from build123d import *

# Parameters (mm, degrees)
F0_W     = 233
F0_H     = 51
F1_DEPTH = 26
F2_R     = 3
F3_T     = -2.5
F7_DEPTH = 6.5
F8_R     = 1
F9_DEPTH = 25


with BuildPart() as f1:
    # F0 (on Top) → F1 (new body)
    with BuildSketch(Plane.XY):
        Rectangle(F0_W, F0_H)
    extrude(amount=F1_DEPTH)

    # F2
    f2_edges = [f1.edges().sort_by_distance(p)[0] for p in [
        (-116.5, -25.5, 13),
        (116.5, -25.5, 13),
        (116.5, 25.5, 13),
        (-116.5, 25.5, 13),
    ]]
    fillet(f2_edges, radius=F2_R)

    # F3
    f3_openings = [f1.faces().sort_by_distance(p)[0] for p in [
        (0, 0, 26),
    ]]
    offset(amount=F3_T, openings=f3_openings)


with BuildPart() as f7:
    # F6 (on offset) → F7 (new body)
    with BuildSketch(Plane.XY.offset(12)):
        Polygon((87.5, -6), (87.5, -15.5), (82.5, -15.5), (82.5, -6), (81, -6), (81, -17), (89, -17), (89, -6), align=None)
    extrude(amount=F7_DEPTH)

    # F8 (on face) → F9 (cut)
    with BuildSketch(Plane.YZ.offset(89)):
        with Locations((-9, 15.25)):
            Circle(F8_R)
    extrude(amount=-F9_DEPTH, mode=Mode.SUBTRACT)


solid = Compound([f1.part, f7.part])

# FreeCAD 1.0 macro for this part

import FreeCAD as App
import Part
import Sketcher
from FreeCAD import Vector


def edges_at(feature, points):
    """Names of the edges that pass closest to the given points."""
    edges = feature.Shape.Edges
    near = lambda p: min(range(len(edges)), key=lambda i: edges[i].distToShape(Part.Vertex(*p))[0])
    return sorted({f"Edge{near(p) + 1}" for p in points})


def faces_at(feature, points):
    """Names of the faces that lie closest to the given points."""
    faces = feature.Shape.Faces
    near = lambda p: min(range(len(faces)), key=lambda i: faces[i].distToShape(Part.Vertex(*p))[0])
    return sorted({f"Face{near(p) + 1}" for p in points})

doc = App.newDocument("Part")
body = doc.addObject("PartDesign::Body", "Body")

sketch1 = body.newObject("Sketcher::SketchObject", "Sketch")
sketch1.AttachmentSupport = (doc.getObject("XY_Plane"), [""])
sketch1.MapMode = "FlatFace"
sketch1.addGeometry([
    Part.LineSegment(Vector(-116, 26, 0), Vector(-116, -26, 0)),
    Part.LineSegment(Vector(-116, -26, 0), Vector(116, -26, 0)),
    Part.LineSegment(Vector(116, -26, 0), Vector(116, 26, 0)),
    Part.LineSegment(Vector(116, 26, 0), Vector(-116, 26, 0)),
], False)
sketch1.addConstraint([
    Sketcher.Constraint("Coincident", 0, 2, 1, 1),
    Sketcher.Constraint("Coincident", 1, 2, 2, 1),
    Sketcher.Constraint("Coincident", 2, 2, 3, 1),
    Sketcher.Constraint("Coincident", 3, 2, 0, 1),
    Sketcher.Constraint("Vertical", 0),
    Sketcher.Constraint("Horizontal", 1),
    Sketcher.Constraint("Vertical", 2),
    Sketcher.Constraint("Horizontal", 3),
    Sketcher.Constraint("Symmetric", 0, 2, 2, 2, -1, 1),
    Sketcher.Constraint("DistanceX", 1, 1, 1, 2, 233.0),
    Sketcher.Constraint("DistanceY", 0, 2, 0, 1, 51.0),
])
pad1 = body.newObject("PartDesign::Pad", "Pad")
pad1.Profile = sketch1
pad1.Length = 26
doc.recompute()

fillet = body.newObject("PartDesign::Fillet", "Fillet")
fillet.Base = (pad1, edges_at(pad1, [
    (-116.5, -25.5, 13),
    (116.5, -25.5, 13),
    (116.5, 25.5, 13),
    (-116.5, 25.5, 13),
]))
fillet.Radius = 3
doc.recompute()

thickness = body.newObject("PartDesign::Thickness", "Thickness")
thickness.Base = (fillet, faces_at(fillet, [(0, 0, 26)]))
thickness.Value = 2.5
thickness.Reversed = True
thickness.Join = "Arc"
body2 = doc.addObject("PartDesign::Body", "Body001")

sketch2 = body2.newObject("Sketcher::SketchObject", "Sketch001")
sketch2.AttachmentSupport = (doc.getObject("XY_Plane001"), [""])
sketch2.MapMode = "FlatFace"
sketch2.AttachmentOffset = App.Placement(Vector(0, 0, 12), App.Rotation())
sketch2.addGeometry([
    Part.LineSegment(Vector(87.5, -6, 0), Vector(87.5, -15.5, 0)),
    Part.LineSegment(Vector(87.5, -15.5, 0), Vector(82.5, -15.5, 0)),
    Part.LineSegment(Vector(82.5, -15.5, 0), Vector(82.5, -6, 0)),
    Part.LineSegment(Vector(82.5, -6, 0), Vector(81, -6, 0)),
    Part.LineSegment(Vector(81, -6, 0), Vector(81, -17, 0)),
    Part.LineSegment(Vector(81, -17, 0), Vector(89, -17, 0)),
    Part.LineSegment(Vector(89, -17, 0), Vector(89, -6, 0)),
    Part.LineSegment(Vector(89, -6, 0), Vector(87.5, -6, 0)),
], False)
sketch2.addConstraint([
    Sketcher.Constraint("Coincident", 0, 2, 1, 1),
    Sketcher.Constraint("Coincident", 1, 2, 2, 1),
    Sketcher.Constraint("Coincident", 2, 2, 3, 1),
    Sketcher.Constraint("Coincident", 3, 2, 4, 1),
    Sketcher.Constraint("Coincident", 4, 2, 5, 1),
    Sketcher.Constraint("Coincident", 5, 2, 6, 1),
    Sketcher.Constraint("Coincident", 6, 2, 7, 1),
    Sketcher.Constraint("Coincident", 7, 2, 0, 1),
    Sketcher.Constraint("Vertical", 0),
    Sketcher.Constraint("Horizontal", 1),
    Sketcher.Constraint("Vertical", 2),
    Sketcher.Constraint("Horizontal", 3),
    Sketcher.Constraint("Vertical", 4),
    Sketcher.Constraint("Horizontal", 5),
    Sketcher.Constraint("Vertical", 6),
    Sketcher.Constraint("Horizontal", 7),
    Sketcher.Constraint("Horizontal", 3, 2, 6, 2),
    Sketcher.Constraint("Equal", 3, 7),
    Sketcher.Constraint("DistanceX", 1, 2, 1, 1, 5.0),
    Sketcher.Constraint("DistanceX", 5, 1, 5, 2, 8.0),
    Sketcher.Constraint("DistanceY", 4, 2, 4, 1, 11.0),
    Sketcher.Constraint("DistanceY", 0, 2, 0, 1, 9.5),
    Sketcher.Constraint("DistanceY", 2, 2, -1, 1, 6.0),
    Sketcher.Constraint("DistanceX", -1, 1, 3, 2, 81.0),
])
pad2 = body2.newObject("PartDesign::Pad", "Pad001")
pad2.Profile = sketch2
pad2.Length = 6.5

sketch3 = body2.newObject("Sketcher::SketchObject", "Sketch002")
sketch3.AttachmentSupport = (doc.getObject("YZ_Plane001"), [""])
sketch3.MapMode = "FlatFace"
sketch3.AttachmentOffset = App.Placement(Vector(0, 0, 89), App.Rotation())
sketch3.addGeometry(Part.Circle(Vector(-9, 15.2, 0), Vector(0, 0, 1), 1), False)
sketch3.addConstraint([
    Sketcher.Constraint("Diameter", 0, 2.0),
    Sketcher.Constraint("DistanceX", 0, 3, -1, 1, 9.0),
    Sketcher.Constraint("DistanceY", -1, 1, 0, 3, 15.25),
])
pocket1 = body2.newObject("PartDesign::Pocket", "Pocket")
pocket1.Profile = sketch3
pocket1.Length = 25

doc.recompute()
